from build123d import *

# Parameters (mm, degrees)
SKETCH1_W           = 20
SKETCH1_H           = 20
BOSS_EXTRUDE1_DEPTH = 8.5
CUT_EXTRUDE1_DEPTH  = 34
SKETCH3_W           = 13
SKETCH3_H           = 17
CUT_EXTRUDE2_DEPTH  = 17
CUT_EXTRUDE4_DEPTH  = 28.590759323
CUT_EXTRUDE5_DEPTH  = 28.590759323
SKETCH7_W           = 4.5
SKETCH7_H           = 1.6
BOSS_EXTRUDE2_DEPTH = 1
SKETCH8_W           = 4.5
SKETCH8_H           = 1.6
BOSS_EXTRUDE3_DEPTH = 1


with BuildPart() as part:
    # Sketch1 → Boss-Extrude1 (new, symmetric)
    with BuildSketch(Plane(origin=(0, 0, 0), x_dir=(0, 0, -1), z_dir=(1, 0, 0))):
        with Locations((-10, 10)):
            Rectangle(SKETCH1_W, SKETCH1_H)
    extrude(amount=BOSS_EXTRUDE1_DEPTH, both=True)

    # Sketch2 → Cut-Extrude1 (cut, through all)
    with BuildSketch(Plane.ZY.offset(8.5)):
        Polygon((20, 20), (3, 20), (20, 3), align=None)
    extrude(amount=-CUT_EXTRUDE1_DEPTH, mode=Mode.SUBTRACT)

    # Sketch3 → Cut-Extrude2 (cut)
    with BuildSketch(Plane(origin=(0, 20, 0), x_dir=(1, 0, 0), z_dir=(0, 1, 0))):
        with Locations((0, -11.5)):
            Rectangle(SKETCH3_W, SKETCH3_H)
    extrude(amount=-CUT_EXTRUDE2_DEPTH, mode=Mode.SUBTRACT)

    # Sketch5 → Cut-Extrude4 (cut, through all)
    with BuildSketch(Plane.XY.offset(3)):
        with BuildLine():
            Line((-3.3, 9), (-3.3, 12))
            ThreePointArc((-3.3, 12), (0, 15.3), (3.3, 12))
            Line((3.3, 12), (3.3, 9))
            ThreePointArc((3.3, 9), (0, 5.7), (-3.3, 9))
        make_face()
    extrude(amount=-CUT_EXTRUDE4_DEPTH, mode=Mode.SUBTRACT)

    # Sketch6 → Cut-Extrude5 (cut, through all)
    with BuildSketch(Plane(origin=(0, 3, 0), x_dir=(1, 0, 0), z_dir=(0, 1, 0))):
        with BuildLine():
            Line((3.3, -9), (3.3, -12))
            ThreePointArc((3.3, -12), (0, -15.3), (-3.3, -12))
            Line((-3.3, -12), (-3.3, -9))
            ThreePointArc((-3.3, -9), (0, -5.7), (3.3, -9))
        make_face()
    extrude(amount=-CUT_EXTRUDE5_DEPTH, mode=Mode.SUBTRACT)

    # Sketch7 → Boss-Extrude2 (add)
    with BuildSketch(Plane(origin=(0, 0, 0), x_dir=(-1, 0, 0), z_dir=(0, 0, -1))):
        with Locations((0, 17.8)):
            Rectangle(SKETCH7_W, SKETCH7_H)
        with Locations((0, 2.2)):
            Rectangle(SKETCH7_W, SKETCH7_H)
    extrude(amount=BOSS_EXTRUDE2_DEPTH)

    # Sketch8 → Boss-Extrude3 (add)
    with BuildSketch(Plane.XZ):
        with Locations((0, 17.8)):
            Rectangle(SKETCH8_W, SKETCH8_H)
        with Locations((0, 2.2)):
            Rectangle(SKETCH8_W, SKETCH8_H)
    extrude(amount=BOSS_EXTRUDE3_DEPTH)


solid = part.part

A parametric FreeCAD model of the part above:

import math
import FreeCAD as App
import Part
import Sketcher


def add_polygon(sketch, points):
    """Adds a closed chain of lines whose ends are joined by coincident constraints."""
    first, n = sketch.GeometryCount, len(points)
    for a, b in zip(points, points[1:] + points[:1]):
        sketch.addGeometry(Part.LineSegment(App.Vector(*a, 0), App.Vector(*b, 0)), False)
    for i in range(n):
        sketch.addConstraint(Sketcher.Constraint("Coincident", first + i, 2, first + (i + 1) % n, 1))

doc = App.newDocument("Part")
params = doc.addObject("Spreadsheet::Sheet", "Params")
for row, (alias, value) in enumerate([
    ("sketch1_width", "20 mm"),
    ("pad1_length", "17 mm"),
    ("sketch2_width", "17 mm"),
    ("sketch3_width", "13 mm"),
    ("sketch3_height", "17 mm"),
    ("pocket2_length", "17 mm"),
    ("sketch4_radius", "3.3 mm"),
    ("sketch4_height", "3 mm"),
    ("sketch5_radius", "3.3 mm"),
    ("sketch5_height", "3 mm"),
    ("sketch6_width", "4.5 mm"),
    ("sketch6_height", "1.6 mm"),
    ("pad2_length", "1 mm"),
    ("sketch7_width", "4.5 mm"),
    ("sketch7_height", "1.6 mm"),
    ("pad3_length", "1 mm"),
], start=1):
    params.set(f"A{row}", alias)
    params.set(f"B{row}", "=" + value)
    params.setAlias(f"B{row}", alias)

body = doc.addObject("PartDesign::Body", "Body")

# Sketch on YZ plane
sketch1 = body.newObject("Sketcher::SketchObject", "Sketch")
sketch1.AttachmentSupport = (doc.getObject("YZ_Plane"), [""])
sketch1.MapMode = "FlatFace"
add_polygon(sketch1, [(20, 20), (0, 20), (0, 0), (20, 0)])  # lines 0-3
sketch1.addConstraint(Sketcher.Constraint("Horizontal", 0))
sketch1.addConstraint(Sketcher.Constraint("Vertical", 1))
sketch1.addConstraint(Sketcher.Constraint("Horizontal", 2))
sketch1.addConstraint(Sketcher.Constraint("Vertical", 3))
sketch1.addConstraint(Sketcher.Constraint("Coincident", 1, 2, -1, 1))
sketch1.addConstraint(Sketcher.Constraint("Equal", 2, 1))
sketch1.addConstraint(Sketcher.Constraint("DistanceX", 0, 2, 0, 1, 20.0))
sketch1.setExpression("Constraints[10]", "Params.sketch1_width")
pad1 = body.newObject("PartDesign::Pad", "Pad")
pad1.Profile = sketch1
pad1.setExpression("Length", "Params.pad1_length")
pad1.Midplane = True

# Sketch on YZ plane
sketch2 = body.newObject("Sketcher::SketchObject", "Sketch001")
sketch2.AttachmentSupport = (doc.getObject("YZ_Plane"), [""])
sketch2.MapMode = "FlatFace"
sketch2.AttachmentOffset = App.Placement(App.Vector(0, 0, -8.5), App.Rotation())
add_polygon(sketch2, [(20, 20), (20, 3), (3, 20)])  # lines 0-2
sketch2.addConstraint(Sketcher.Constraint("Vertical", 0))
sketch2.addConstraint(Sketcher.Constraint("Horizontal", 2))
sketch2.addConstraint(Sketcher.Constraint("Equal", 2, 0))
sketch2.addConstraint(Sketcher.Constraint("DistanceX", 2, 1, 2, 2, 17.0))
sketch2.addConstraint(Sketcher.Constraint("DistanceX", -1, 1, 0, 2, 20.0))
sketch2.addConstraint(Sketcher.Constraint("DistanceY", -1, 1, 0, 2, 3.0))
sketch2.setExpression("Constraints[6]", "Params.sketch2_width")
pocket1 = body.newObject("PartDesign::Pocket", "Pocket")
pocket1.Profile = sketch2
pocket1.Type = "ThroughAll"
pocket1.Reversed = True

# Sketch on XZ plane
sketch3 = body.newObject("Sketcher::SketchObject", "Sketch002")
sketch3.AttachmentSupport = (doc.getObject("XZ_Plane"), [""])
sketch3.MapMode = "FlatFace"
sketch3.AttachmentOffset = App.Placement(App.Vector(0, 0, -20), App.Rotation())
add_polygon(sketch3, [(-6.5, 3), (-6.5, 20), (6.5, 20), (6.5, 3)])  # lines 0-3
sketch3.addConstraint(Sketcher.Constraint("Vertical", 0))
sketch3.addConstraint(Sketcher.Constraint("Horizontal", 1))
sketch3.addConstraint(Sketcher.Constraint("Vertical", 2))
sketch3.addConstraint(Sketcher.Constraint("Horizontal", 3))
sketch3.addConstraint(Sketcher.Constraint("DistanceX", 1, 1, 1, 2, 13.0))
sketch3.addConstraint(Sketcher.Constraint("DistanceY", 0, 1, 0, 2, 17.0))
sketch3.addConstraint(Sketcher.Constraint("DistanceY", -1, 1, 0, 2, 20.0))
sketch3.addConstraint(Sketcher.Constraint("DistanceX", 0, 2, -1, 1, 6.5))
sketch3.setExpression("Constraints[8]", "Params.sketch3_width")
sketch3.setExpression("Constraints[9]", "Params.sketch3_height")
pocket2 = body.newObject("PartDesign::Pocket", "Pocket001")
pocket2.Profile = sketch3
pocket2.setExpression("Length", "Params.pocket2_length")
pocket2.Reversed = True

# Sketch on XY plane
sketch4 = body.newObject("Sketcher::SketchObject", "Sketch003")
sketch4.AttachmentSupport = (doc.getObject("XY_Plane"), [""])
sketch4.MapMode = "FlatFace"
sketch4.AttachmentOffset = App.Placement(App.Vector(0, 0, 3), App.Rotation())
sketch4.addGeometry(Part.LineSegment(App.Vector(-3.3, 12, 0), App.Vector(-3.3, 9, 0)), False)
sketch4.addGeometry(Part.ArcOfCircle(Part.Circle(App.Vector(0, 9, 0), App.Vector(0, 0, 1), 3.3), math.radians(180), math.radians(360)), False)
sketch4.addGeometry(Part.LineSegment(App.Vector(3.3, 9, 0), App.Vector(3.3, 12, 0)), False)
sketch4.addGeometry(Part.ArcOfCircle(Part.Circle(App.Vector(0, 12, 0), App.Vector(0, 0, 1), 3.3), math.radians(0), math.radians(180)), False)
sketch4.addConstraint(Sketcher.Constraint("Tangent", 0, 2, 1, 1))
sketch4.addConstraint(Sketcher.Constraint("Tangent", 1, 2, 2, 1))
sketch4.addConstraint(Sketcher.Constraint("Tangent", 2, 2, 3, 1))
sketch4.addConstraint(Sketcher.Constraint("Tangent", 3, 2, 0, 1))
sketch4.addConstraint(Sketcher.Constraint("Vertical", 0))
sketch4.addConstraint(Sketcher.Constraint("Vertical", 2))
sketch4.addConstraint(Sketcher.Constraint("PointOnObject", 1, 3, -2))
sketch4.addConstraint(Sketcher.Constraint("Radius", 1, 3.3))
sketch4.addConstraint(Sketcher.Constraint("DistanceY", 0, 2, 0, 1, 3.0))
sketch4.addConstraint(Sketcher.Constraint("DistanceY", -1, 1, 1, 3, 9.0))
sketch4.setExpression("Constraints[7]", "Params.sketch4_radius")
sketch4.setExpression("Constraints[8]", "Params.sketch4_height")
pocket3 = body.newObject("PartDesign::Pocket", "Pocket002")
pocket3.Profile = sketch4
pocket3.Type = "ThroughAll"

# Sketch on XZ plane
sketch5 = body.newObject("Sketcher::SketchObject", "Sketch004")
sketch5.AttachmentSupport = (doc.getObject("XZ_Plane"), [""])
sketch5.MapMode = "FlatFace"
sketch5.AttachmentOffset = App.Placement(App.Vector(0, 0, -3), App.Rotation())
sketch5.addGeometry(Part.LineSegment(App.Vector(3.3, 12, 0), App.Vector(3.3, 9, 0)), False)
sketch5.addGeometry(Part.ArcOfCircle(Part.Circle(App.Vector(0, 9, 0), App.Vector(0, 0, 1), 3.3), math.radians(180), math.radians(360)), False)
sketch5.addGeometry(Part.LineSegment(App.Vector(-3.3, 9, 0), App.Vector(-3.3, 12, 0)), False)
sketch5.addGeometry(Part.ArcOfCircle(Part.Circle(App.Vector(0, 12, 0), App.Vector(0, 0, 1), 3.3), math.radians(0), math.radians(180)), False)
sketch5.addConstraint(Sketcher.Constraint("Tangent", 0, 2, 1, 2))
sketch5.addConstraint(Sketcher.Constraint("Tangent", 1, 1, 2, 1))
sketch5.addConstraint(Sketcher.Constraint("Tangent", 2, 2, 3, 2))
sketch5.addConstraint(Sketcher.Constraint("Tangent", 3, 1, 0, 1))
sketch5.addConstraint(Sketcher.Constraint("Vertical", 0))
sketch5.addConstraint(Sketcher.Constraint("Vertical", 2))
sketch5.addConstraint(Sketcher.Constraint("PointOnObject", 1, 3, -2))
sketch5.addConstraint(Sketcher.Constraint("Radius", 1, 3.3))
sketch5.addConstraint(Sketcher.Constraint("DistanceY", 0, 2, 0, 1, 3.0))
sketch5.addConstraint(Sketcher.Constraint("DistanceY", -1, 1, 1, 3, 9.0))
sketch5.setExpression("Constraints[7]", "Params.sketch5_radius")
sketch5.setExpression("Constraints[8]", "Params.sketch5_height")
pocket4 = body.newObject("PartDesign::Pocket", "Pocket003")
pocket4.Profile = sketch5
pocket4.Type = "ThroughAll"
pocket4.Reversed = True

# Sketch on XY plane
sketch6 = body.newObject("Sketcher::SketchObject", "Sketch005")
sketch6.AttachmentSupport = (doc.getObject("XY_Plane"), [""])
sketch6.MapMode = "FlatFace"
add_polygon(sketch6, [(2.25, 18.6), (2.25, 17), (-2.25, 17), (-2.25, 18.6)])  # lines 0-3
add_polygon(sketch6, [(2.25, 3), (2.25, 1.4), (-2.25, 1.4), (-2.25, 3)])  # lines 4-7
sketch6.addConstraint(Sketcher.Constraint("Vertical", 0))
sketch6.addConstraint(Sketcher.Constraint("Horizontal", 1))
sketch6.addConstraint(Sketcher.Constraint("Vertical", 2))
sketch6.addConstraint(Sketcher.Constraint("Horizontal", 3))
sketch6.addConstraint(Sketcher.Constraint("Vertical", 4))
sketch6.addConstraint(Sketcher.Constraint("Horizontal", 5))
sketch6.addConstraint(Sketcher.Constraint("Vertical", 6))
sketch6.addConstraint(Sketcher.Constraint("Horizontal", 7))
sketch6.addConstraint(Sketcher.Constraint("Vertical", 3, 2, 4, 2))
sketch6.addConstraint(Sketcher.Constraint("Vertical", 2, 2, 5, 2))
sketch6.addConstraint(Sketcher.Constraint("Equal", 2, 4))
sketch6.addConstraint(Sketcher.Constraint("DistanceX", 1, 2, 1, 1, 4.5))
sketch6.addConstraint(Sketcher.Constraint("DistanceY", 0, 2, 0, 1, 1.6))
sketch6.addConstraint(Sketcher.Constraint("DistanceY", -1, 1, 0, 2, 17.0))
sketch6.addConstraint(Sketcher.Constraint("DistanceY", -1, 1, 6, 2, 3.0))
sketch6.addConstraint(Sketcher.Constraint("DistanceX", -1, 1, 0, 2, 2.25))
sketch6.setExpression("Constraints[19]", "Params.sketch6_width")
sketch6.setExpression("Constraints[20]", "Params.sketch6_height")
pad2 = body.newObject("PartDesign::Pad", "Pad001")
pad2.Profile = sketch6
pad2.setExpression("Length", "Params.pad2_length")
pad2.Reversed = True

# Sketch on XZ plane
sketch7 = body.newObject("Sketcher::SketchObject", "Sketch006")
sketch7.AttachmentSupport = (doc.getObject("XZ_Plane"), [""])
sketch7.MapMode = "FlatFace"
add_polygon(sketch7, [(-2.25, 18.6), (-2.25, 17), (2.25, 17), (2.25, 18.6)])  # lines 0-3
add_polygon(sketch7, [(-2.25, 3), (-2.25, 1.4), (2.25, 1.4), (2.25, 3)])  # lines 4-7
sketch7.addConstraint(Sketcher.Constraint("Vertical", 0))
sketch7.addConstraint(Sketcher.Constraint("Horizontal", 1))
sketch7.addConstraint(Sketcher.Constraint("Vertical", 2))
sketch7.addConstraint(Sketcher.Constraint("Horizontal", 3))
sketch7.addConstraint(Sketcher.Constraint("Vertical", 4))
sketch7.addConstraint(Sketcher.Constraint("Horizontal", 5))
sketch7.addConstraint(Sketcher.Constraint("Vertical", 6))
sketch7.addConstraint(Sketcher.Constraint("Horizontal", 7))
sketch7.addConstraint(Sketcher.Constraint("Vertical", 3, 2, 4, 2))
sketch7.addConstraint(Sketcher.Constraint("Vertical", 2, 2, 5, 2))
sketch7.addConstraint(Sketcher.Constraint("Equal", 2, 4))
sketch7.addConstraint(Sketcher.Constraint("DistanceX", 1, 1, 1, 2, 4.5))
sketch7.addConstraint(Sketcher.Constraint("DistanceY", 0, 2, 0, 1, 1.6))
sketch7.addConstraint(Sketcher.Constraint("DistanceY", -1, 1, 0, 2, 17.0))
sketch7.addConstraint(Sketcher.Constraint("DistanceY", -1, 1, 6, 2, 3.0))
sketch7.addConstraint(Sketcher.Constraint("DistanceX", 0, 2, -1, 1, 2.25))
sketch7.setExpression("Constraints[19]", "Params.sketch7_width")
sketch7.setExpression("Constraints[20]", "Params.sketch7_height")
pad3 = body.newObject("PartDesign::Pad", "Pad002")
pad3.Profile = sketch7
pad3.setExpression("Length", "Params.pad3_length")

doc.recompute()
